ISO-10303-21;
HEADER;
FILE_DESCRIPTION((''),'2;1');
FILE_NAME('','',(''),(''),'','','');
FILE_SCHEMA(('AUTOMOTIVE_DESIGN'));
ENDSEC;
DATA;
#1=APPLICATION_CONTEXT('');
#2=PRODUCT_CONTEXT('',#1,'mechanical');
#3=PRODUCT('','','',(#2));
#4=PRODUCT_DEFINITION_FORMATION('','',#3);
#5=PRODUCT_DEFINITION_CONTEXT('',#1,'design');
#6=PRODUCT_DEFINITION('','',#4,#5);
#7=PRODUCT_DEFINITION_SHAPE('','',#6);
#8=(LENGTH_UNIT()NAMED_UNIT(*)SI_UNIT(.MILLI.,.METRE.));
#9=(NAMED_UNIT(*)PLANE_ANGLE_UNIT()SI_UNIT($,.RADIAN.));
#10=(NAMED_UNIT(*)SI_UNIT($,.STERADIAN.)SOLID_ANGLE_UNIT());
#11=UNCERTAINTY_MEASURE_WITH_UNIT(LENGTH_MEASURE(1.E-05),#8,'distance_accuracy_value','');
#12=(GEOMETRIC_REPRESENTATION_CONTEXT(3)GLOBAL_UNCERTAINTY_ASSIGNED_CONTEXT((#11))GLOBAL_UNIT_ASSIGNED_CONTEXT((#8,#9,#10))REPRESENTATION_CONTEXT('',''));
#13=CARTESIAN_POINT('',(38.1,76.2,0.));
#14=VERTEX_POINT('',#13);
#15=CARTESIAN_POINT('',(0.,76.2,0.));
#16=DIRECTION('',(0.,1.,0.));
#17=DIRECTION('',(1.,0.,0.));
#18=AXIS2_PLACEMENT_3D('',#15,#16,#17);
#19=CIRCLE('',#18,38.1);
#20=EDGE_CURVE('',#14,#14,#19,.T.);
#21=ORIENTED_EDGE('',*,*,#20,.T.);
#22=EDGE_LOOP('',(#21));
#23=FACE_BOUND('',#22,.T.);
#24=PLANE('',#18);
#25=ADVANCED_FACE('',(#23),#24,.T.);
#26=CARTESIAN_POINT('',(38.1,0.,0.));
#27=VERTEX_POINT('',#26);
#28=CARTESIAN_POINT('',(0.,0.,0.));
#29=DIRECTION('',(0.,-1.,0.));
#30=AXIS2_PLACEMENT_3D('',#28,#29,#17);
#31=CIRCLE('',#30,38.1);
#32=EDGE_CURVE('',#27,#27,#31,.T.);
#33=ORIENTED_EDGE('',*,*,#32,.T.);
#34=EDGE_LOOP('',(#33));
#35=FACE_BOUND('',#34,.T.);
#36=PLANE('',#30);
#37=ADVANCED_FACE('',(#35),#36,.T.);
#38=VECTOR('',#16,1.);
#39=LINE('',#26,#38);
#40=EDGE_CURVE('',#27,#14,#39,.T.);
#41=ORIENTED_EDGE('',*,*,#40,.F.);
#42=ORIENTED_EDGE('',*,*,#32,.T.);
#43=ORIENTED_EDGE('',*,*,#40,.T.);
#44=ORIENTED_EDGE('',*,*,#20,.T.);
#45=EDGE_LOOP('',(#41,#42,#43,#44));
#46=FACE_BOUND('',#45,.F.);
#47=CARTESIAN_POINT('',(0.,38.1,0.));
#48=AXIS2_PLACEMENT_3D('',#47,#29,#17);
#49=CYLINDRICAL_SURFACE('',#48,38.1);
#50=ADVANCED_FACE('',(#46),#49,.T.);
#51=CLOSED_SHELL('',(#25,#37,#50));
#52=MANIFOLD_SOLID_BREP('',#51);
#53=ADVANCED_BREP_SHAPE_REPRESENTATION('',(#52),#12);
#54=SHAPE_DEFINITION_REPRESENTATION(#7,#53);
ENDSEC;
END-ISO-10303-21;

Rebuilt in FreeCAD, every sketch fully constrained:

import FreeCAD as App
import Part
import Sketcher
from FreeCAD import Vector
Q = App.Units.Quantity

doc = App.newDocument("Part")
params = doc.addObject("Spreadsheet::Sheet", "Params")
for row, (alias, value) in enumerate([
    ("sketch1_diameter", "3 in"),
    ("pad1_length", "1.5 in"),
    ("sketch2_diameter", "3 in"),
    ("pad2_length", "1.5 in"),
], start=1):
    params.set(f"A{row}", alias)
    params.set(f"B{row}", "=" + value)
    params.setAlias(f"B{row}", alias)

body = doc.addObject("PartDesign::Body", "Body")

sketch1 = body.newObject("Sketcher::SketchObject", "Sketch")
sketch1.AttachmentSupport = (doc.getObject("XZ_Plane"), [""])
sketch1.MapMode = "FlatFace"
sketch1.addGeometry(Part.Circle(Vector(0, 0, 0), Vector(0, 0, 1), 38), False)
sketch1.addConstraint([
    Sketcher.Constraint("Coincident", 0, 3, -1, 1),
    Sketcher.Constraint("Diameter", 0, Q("3 in")),
])
sketch1.setExpression("Constraints[1]", "Params.sketch1_diameter")
pad1 = body.newObject("PartDesign::Pad", "Pad")
pad1.Profile = sketch1
pad1.setExpression("Length", "Params.pad1_length")
pad1.Reversed = True

sketch2 = body.newObject("Sketcher::SketchObject", "Sketch001")
sketch2.AttachmentSupport = (doc.getObject("XZ_Plane"), [""])
sketch2.MapMode = "FlatFace"
sketch2.AttachmentOffset = App.Placement(Vector(0, 0, -1.5 * 25.4), App.Rotation())
sketch2.addGeometry(Part.Circle(Vector(0, 0, 0), Vector(0, 0, 1), 38), False)
sketch2.addConstraint([
    Sketcher.Constraint("Coincident", 0, 3, -1, 1),
    Sketcher.Constraint("Diameter", 0, Q("3 in")),
])
sketch2.setExpression("Constraints[1]", "Params.sketch2_diameter")
pad2 = body.newObject("PartDesign::Pad", "Pad001")
pad2.Profile = sketch2
pad2.setExpression("Length", "Params.pad2_length")
pad2.Reversed = True

doc.recompute()
